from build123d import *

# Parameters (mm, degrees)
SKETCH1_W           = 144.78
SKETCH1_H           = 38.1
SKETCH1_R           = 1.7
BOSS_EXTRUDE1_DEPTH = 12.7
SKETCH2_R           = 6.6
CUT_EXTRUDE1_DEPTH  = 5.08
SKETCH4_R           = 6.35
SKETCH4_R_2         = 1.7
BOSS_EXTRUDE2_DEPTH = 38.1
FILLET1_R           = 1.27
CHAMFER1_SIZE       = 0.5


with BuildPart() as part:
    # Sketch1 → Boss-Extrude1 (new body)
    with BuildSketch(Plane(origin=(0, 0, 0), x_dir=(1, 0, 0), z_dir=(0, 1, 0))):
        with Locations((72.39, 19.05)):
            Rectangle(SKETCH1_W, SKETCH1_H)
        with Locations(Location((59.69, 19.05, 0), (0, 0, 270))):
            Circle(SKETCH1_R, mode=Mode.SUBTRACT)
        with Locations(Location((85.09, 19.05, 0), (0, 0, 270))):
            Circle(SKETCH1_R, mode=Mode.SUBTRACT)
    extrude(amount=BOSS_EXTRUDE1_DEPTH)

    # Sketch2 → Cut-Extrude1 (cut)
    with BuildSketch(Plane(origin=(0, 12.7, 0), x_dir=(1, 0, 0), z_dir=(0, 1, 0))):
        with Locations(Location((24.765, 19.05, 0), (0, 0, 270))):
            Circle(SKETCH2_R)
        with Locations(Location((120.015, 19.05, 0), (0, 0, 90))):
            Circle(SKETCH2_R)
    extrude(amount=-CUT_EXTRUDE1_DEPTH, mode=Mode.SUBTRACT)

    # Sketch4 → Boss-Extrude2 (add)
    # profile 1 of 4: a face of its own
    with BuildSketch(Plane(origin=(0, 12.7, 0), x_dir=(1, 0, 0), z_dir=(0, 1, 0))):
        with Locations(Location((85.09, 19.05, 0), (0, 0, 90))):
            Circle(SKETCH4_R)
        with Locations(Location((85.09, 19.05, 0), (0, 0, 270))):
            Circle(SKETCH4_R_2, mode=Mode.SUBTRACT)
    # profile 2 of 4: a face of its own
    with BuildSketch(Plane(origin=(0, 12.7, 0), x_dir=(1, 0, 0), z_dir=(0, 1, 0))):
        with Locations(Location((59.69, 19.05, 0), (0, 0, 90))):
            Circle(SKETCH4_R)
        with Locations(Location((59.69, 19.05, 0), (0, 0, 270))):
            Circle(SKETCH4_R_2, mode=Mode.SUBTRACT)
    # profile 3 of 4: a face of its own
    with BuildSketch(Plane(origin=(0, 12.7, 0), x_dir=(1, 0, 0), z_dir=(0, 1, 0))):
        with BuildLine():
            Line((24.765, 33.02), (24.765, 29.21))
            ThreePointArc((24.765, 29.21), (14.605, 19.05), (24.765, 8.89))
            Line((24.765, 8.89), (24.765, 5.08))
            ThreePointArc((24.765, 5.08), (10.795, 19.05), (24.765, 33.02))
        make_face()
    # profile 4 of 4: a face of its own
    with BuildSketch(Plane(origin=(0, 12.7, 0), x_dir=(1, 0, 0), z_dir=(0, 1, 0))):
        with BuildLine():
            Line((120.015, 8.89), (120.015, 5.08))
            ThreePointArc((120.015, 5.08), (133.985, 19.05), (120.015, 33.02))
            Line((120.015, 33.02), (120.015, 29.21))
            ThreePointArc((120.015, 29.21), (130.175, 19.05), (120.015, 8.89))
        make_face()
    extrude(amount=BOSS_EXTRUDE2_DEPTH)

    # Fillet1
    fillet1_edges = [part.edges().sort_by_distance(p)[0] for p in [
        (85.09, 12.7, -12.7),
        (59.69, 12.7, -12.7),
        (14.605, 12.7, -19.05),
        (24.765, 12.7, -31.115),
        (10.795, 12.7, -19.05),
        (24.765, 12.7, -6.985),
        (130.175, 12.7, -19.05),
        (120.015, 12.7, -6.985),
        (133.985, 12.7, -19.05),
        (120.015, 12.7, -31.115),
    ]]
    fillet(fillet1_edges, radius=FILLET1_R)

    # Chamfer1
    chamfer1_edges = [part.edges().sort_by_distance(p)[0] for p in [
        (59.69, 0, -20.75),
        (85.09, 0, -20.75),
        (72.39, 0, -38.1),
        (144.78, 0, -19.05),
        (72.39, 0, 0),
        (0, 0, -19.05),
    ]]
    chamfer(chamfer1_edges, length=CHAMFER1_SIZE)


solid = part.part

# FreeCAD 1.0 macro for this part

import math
import FreeCAD as App
import Part
import Sketcher
Q = App.Units.Quantity


def edges_at(feature, points):
    """Names of the edges that pass closest to the given points."""
    edges = feature.Shape.Edges
    near = lambda p: min(range(len(edges)), key=lambda i: edges[i].distToShape(Part.Vertex(*p))[0])
    return sorted({f"Edge{near(p) + 1}" for p in points})

doc = App.newDocument("Part")
body = doc.addObject("PartDesign::Body", "Body")

# Sketch on XZ plane
sketch1 = body.newObject("Sketcher::SketchObject", "Sketch")
sketch1.AttachmentSupport = (doc.getObject("XZ_Plane"), [""])
sketch1.MapMode = "FlatFace"
sketch1.addGeometry(Part.LineSegment(App.Vector(0, -38.1, 0), App.Vector(0, 0, 0)), False)
sketch1.addGeometry(Part.LineSegment(App.Vector(0, 0, 0), App.Vector(144.8, 0, 0)), False)
sketch1.addGeometry(Part.LineSegment(App.Vector(144.8, 0, 0), App.Vector(144.8, -38.1, 0)), False)
sketch1.addGeometry(Part.LineSegment(App.Vector(144.8, -38.1, 0), App.Vector(0, -38.1, 0)), False)
sketch1.addGeometry(Part.Circle(App.Vector(59.7, -19.1, 0), App.Vector(0, 0, 1), 1.7), False)
sketch1.addGeometry(Part.Circle(App.Vector(85.1, -19.1, 0), App.Vector(0, 0, 1), 1.7), False)
sketch1.addConstraint(Sketcher.Constraint("Coincident", 0, 2, 1, 1))
sketch1.addConstraint(Sketcher.Constraint("Coincident", 1, 2, 2, 1))
sketch1.addConstraint(Sketcher.Constraint("Coincident", 2, 2, 3, 1))
sketch1.addConstraint(Sketcher.Constraint("Coincident", 3, 2, 0, 1))
sketch1.addConstraint(Sketcher.Constraint("Vertical", 0))
sketch1.addConstraint(Sketcher.Constraint("Horizontal", 1))
sketch1.addConstraint(Sketcher.Constraint("Vertical", 2))
sketch1.addConstraint(Sketcher.Constraint("Horizontal", 3))
sketch1.addConstraint(Sketcher.Constraint("Coincident", 0, 2, -1, 1))
sketch1.addConstraint(Sketcher.Constraint("Equal", 4, 5))
sketch1.addConstraint(Sketcher.Constraint("Horizontal", 4, 3, 5, 3))
sketch1.addConstraint(Sketcher.Constraint("DistanceX", 1, 1, 1, 2, Q("5.7 in")))
sketch1.addConstraint(Sketcher.Constraint("DistanceY", 0, 1, 0, 2, Q("1.5 in")))
sketch1.addConstraint(Sketcher.Constraint("DistanceX", 4, 3, 5, 3, Q("1 in")))
sketch1.addConstraint(Sketcher.Constraint("Diameter", 4, Q("3.4 mm")))
sketch1.addConstraint(Sketcher.Constraint("DistanceX", -1, 1, 4, 3, Q("2.35 in")))
sketch1.addConstraint(Sketcher.Constraint("DistanceY", 4, 3, -1, 1, Q("0.75 in")))
pad1 = body.newObject("PartDesign::Pad", "Pad")
pad1.Profile = sketch1
pad1.Length = Q("0.5 in")
pad1.Reversed = True

# Sketch on XZ plane
sketch2 = body.newObject("Sketcher::SketchObject", "Sketch001")
sketch2.AttachmentSupport = (doc.getObject("XZ_Plane"), [""])
sketch2.MapMode = "FlatFace"
sketch2.AttachmentOffset = App.Placement(App.Vector(0, 0, -0.5 * 25.4), App.Rotation())
sketch2.addGeometry(Part.Circle(App.Vector(25, -19, 0), App.Vector(0, 0, 1), 7), False)
sketch2.addGeometry(Part.Circle(App.Vector(120, -19, 0), App.Vector(0, 0, 1), 7), False)
sketch2.addConstraint(Sketcher.Constraint("Equal", 0, 1))
sketch2.addConstraint(Sketcher.Constraint("Horizontal", 0, 3, 1, 3))
sketch2.addConstraint(Sketcher.Constraint("Diameter", 0, Q("13.2 mm")))
sketch2.addConstraint(Sketcher.Constraint("DistanceY", 0, 3, -1, 1, Q("0.75 in")))
sketch2.addConstraint(Sketcher.Constraint("DistanceX", 0, 3, 1, 3, Q("3.75 in")))
sketch2.addConstraint(Sketcher.Constraint("DistanceX", -1, 1, 0, 3, Q("0.975 in")))
pocket1 = body.newObject("PartDesign::Pocket", "Pocket")
pocket1.Profile = sketch2
pocket1.Length = Q("0.2 in")
pocket1.Reversed = True

# Sketch on XZ plane
sketch3 = body.newObject("Sketcher::SketchObject", "Sketch002")
sketch3.AttachmentSupport = (doc.getObject("XZ_Plane"), [""])
sketch3.MapMode = "FlatFace"
sketch3.AttachmentOffset = App.Placement(App.Vector(0, 0, -0.5 * 25.4), App.Rotation())
sketch3.addGeometry(Part.Circle(App.Vector(85.1, -19.1, 0), App.Vector(0, 0, 1), 6.3), False)
sketch3.addGeometry(Part.Circle(App.Vector(85.1, -19.1, 0), App.Vector(0, 0, 1), 1.7), False)
sketch3.addGeometry(Part.Circle(App.Vector(59.7, -19.1, 0), App.Vector(0, 0, 1), 6.3), False)
sketch3.addGeometry(Part.Circle(App.Vector(59.7, -19.1, 0), App.Vector(0, 0, 1), 1.7), False)
sketch3.addGeometry(Part.LineSegment(App.Vector(24.8, -29.2, 0), App.Vector(24.8, -33, 0)), False)
sketch3.addGeometry(Part.ArcOfCircle(Part.Circle(App.Vector(24.8, -19.1, 0), App.Vector(0, 0, 1), 14), math.radians(90), math.radians(270)), False)
sketch3.addGeometry(Part.LineSegment(App.Vector(24.8, -5.1, 0), App.Vector(24.8, -8.9, 0)), False)
sketch3.addGeometry(Part.ArcOfCircle(Part.Circle(App.Vector(24.8, -19.1, 0), App.Vector(0, 0, 1), 10.2), math.radians(90), math.radians(270)), False)
sketch3.addGeometry(Part.LineSegment(App.Vector(120, -8.9, 0), App.Vector(120, -5.1, 0)), False)
sketch3.addGeometry(Part.ArcOfCircle(Part.Circle(App.Vector(120, -19.1, 0), App.Vector(0, 0, 1), 14), math.radians(-90), math.radians(90)), False)
sketch3.addGeometry(Part.LineSegment(App.Vector(120, -33, 0), App.Vector(120, -29.2, 0)), False)
sketch3.addGeometry(Part.ArcOfCircle(Part.Circle(App.Vector(120, -19.1, 0), App.Vector(0, 0, 1), 10.2), math.radians(-90), math.radians(90)), False)
sketch3.addConstraint(Sketcher.Constraint("Coincident", 4, 2, 5, 2))
sketch3.addConstraint(Sketcher.Constraint("Coincident", 5, 1, 6, 1))
sketch3.addConstraint(Sketcher.Constraint("Coincident", 6, 2, 7, 1))
sketch3.addConstraint(Sketcher.Constraint("Coincident", 7, 2, 4, 1))
sketch3.addConstraint(Sketcher.Constraint("Coincident", 8, 2, 9, 2))
sketch3.addConstraint(Sketcher.Constraint("Coincident", 9, 1, 10, 1))
sketch3.addConstraint(Sketcher.Constraint("Coincident", 10, 2, 11, 1))
sketch3.addConstraint(Sketcher.Constraint("Coincident", 11, 2, 8, 1))
sketch3.addConstraint(Sketcher.Constraint("Vertical", 4))
sketch3.addConstraint(Sketcher.Constraint("Vertical", 6))
sketch3.addConstraint(Sketcher.Constraint("Vertical", 8))
sketch3.addConstraint(Sketcher.Constraint("Vertical", 10))
sketch3.addConstraint(Sketcher.Constraint("Coincident", 1, 3, 0, 3))
sketch3.addConstraint(Sketcher.Constraint("Coincident", 3, 3, 2, 3))
sketch3.addConstraint(Sketcher.Constraint("Coincident", 7, 3, 5, 3))
sketch3.addConstraint(Sketcher.Constraint("Coincident", 11, 3, 9, 3))
sketch3.addConstraint(Sketcher.Constraint("Equal", 0, 2))
sketch3.addConstraint(Sketcher.Constraint("Equal", 1, 3))
sketch3.addConstraint(Sketcher.Constraint("Equal", 5, 9))
sketch3.addConstraint(Sketcher.Constraint("Equal", 7, 11))
sketch3.addConstraint(Sketcher.Constraint("Horizontal", 1, 3, 2, 3))
sketch3.addConstraint(Sketcher.Constraint("Horizontal", 3, 3, 5, 3))
sketch3.addConstraint(Sketcher.Constraint("Horizontal", 7, 3, 9, 3))
sketch3.addConstraint(Sketcher.Constraint("Vertical", 7, 3, 4, 2))
sketch3.addConstraint(Sketcher.Constraint("Vertical", 4, 2, 5, 1))
sketch3.addConstraint(Sketcher.Constraint("Vertical", 11, 3, 8, 2))
sketch3.addConstraint(Sketcher.Constraint("Vertical", 8, 2, 9, 1))
sketch3.addConstraint(Sketcher.Constraint("Diameter", 0, Q("0.5 in")))
sketch3.addConstraint(Sketcher.Constraint("Radius", 7, Q("0.4 in")))
sketch3.addConstraint(Sketcher.Constraint("Radius", 5, Q("0.55 in")))
sketch3.addConstraint(Sketcher.Constraint("DistanceX", 2, 3, 0, 3, Q("1 in")))
sketch3.addConstraint(Sketcher.Constraint("DistanceY", 4, 2, -1, 1, Q("1.3 in")))
sketch3.addConstraint(Sketcher.Constraint("Diameter", 1, Q("3.4 mm")))
sketch3.addConstraint(Sketcher.Constraint("DistanceX", -1, 1, 0, 3, Q("3.35 in")))
sketch3.addConstraint(Sketcher.Constraint("DistanceX", 5, 3, 9, 3, Q("3.75 in")))
sketch3.addConstraint(Sketcher.Constraint("DistanceX", -1, 1, 5, 3, Q("0.975 in")))
pad2 = body.newObject("PartDesign::Pad", "Pad001")
pad2.Profile = sketch3
pad2.Length = Q("1.5 in")
pad2.Reversed = True
doc.recompute()

fillet = body.newObject("PartDesign::Fillet", "Fillet")
fillet.Base = (pad2, edges_at(pad2, [
    (85.09, 12.7, -12.7),
    (59.69, 12.7, -12.7),
    (14.605, 12.7, -19.05),
    (24.765, 12.7, -31.115),
    (10.795, 12.7, -19.05),
    (24.765, 12.7, -6.985),
    (130.175, 12.7, -19.05),
    (120.015, 12.7, -6.985),
    (133.985, 12.7, -19.05),
    (120.015, 12.7, -31.115),
]))
fillet.Radius = Q("0.05 in")
doc.recompute()

chamfer = body.newObject("PartDesign::Chamfer", "Chamfer")
chamfer.Base = (fillet, edges_at(fillet, [
    (59.69, 0, -20.75),
    (85.09, 0, -20.75),
    (72.39, 0, -38.1),
    (144.78, 0, -19.05),
    (72.39, 0, 0),
    (0, 0, -19.05),
]))
chamfer.Size = 0.5

doc.recompute()
